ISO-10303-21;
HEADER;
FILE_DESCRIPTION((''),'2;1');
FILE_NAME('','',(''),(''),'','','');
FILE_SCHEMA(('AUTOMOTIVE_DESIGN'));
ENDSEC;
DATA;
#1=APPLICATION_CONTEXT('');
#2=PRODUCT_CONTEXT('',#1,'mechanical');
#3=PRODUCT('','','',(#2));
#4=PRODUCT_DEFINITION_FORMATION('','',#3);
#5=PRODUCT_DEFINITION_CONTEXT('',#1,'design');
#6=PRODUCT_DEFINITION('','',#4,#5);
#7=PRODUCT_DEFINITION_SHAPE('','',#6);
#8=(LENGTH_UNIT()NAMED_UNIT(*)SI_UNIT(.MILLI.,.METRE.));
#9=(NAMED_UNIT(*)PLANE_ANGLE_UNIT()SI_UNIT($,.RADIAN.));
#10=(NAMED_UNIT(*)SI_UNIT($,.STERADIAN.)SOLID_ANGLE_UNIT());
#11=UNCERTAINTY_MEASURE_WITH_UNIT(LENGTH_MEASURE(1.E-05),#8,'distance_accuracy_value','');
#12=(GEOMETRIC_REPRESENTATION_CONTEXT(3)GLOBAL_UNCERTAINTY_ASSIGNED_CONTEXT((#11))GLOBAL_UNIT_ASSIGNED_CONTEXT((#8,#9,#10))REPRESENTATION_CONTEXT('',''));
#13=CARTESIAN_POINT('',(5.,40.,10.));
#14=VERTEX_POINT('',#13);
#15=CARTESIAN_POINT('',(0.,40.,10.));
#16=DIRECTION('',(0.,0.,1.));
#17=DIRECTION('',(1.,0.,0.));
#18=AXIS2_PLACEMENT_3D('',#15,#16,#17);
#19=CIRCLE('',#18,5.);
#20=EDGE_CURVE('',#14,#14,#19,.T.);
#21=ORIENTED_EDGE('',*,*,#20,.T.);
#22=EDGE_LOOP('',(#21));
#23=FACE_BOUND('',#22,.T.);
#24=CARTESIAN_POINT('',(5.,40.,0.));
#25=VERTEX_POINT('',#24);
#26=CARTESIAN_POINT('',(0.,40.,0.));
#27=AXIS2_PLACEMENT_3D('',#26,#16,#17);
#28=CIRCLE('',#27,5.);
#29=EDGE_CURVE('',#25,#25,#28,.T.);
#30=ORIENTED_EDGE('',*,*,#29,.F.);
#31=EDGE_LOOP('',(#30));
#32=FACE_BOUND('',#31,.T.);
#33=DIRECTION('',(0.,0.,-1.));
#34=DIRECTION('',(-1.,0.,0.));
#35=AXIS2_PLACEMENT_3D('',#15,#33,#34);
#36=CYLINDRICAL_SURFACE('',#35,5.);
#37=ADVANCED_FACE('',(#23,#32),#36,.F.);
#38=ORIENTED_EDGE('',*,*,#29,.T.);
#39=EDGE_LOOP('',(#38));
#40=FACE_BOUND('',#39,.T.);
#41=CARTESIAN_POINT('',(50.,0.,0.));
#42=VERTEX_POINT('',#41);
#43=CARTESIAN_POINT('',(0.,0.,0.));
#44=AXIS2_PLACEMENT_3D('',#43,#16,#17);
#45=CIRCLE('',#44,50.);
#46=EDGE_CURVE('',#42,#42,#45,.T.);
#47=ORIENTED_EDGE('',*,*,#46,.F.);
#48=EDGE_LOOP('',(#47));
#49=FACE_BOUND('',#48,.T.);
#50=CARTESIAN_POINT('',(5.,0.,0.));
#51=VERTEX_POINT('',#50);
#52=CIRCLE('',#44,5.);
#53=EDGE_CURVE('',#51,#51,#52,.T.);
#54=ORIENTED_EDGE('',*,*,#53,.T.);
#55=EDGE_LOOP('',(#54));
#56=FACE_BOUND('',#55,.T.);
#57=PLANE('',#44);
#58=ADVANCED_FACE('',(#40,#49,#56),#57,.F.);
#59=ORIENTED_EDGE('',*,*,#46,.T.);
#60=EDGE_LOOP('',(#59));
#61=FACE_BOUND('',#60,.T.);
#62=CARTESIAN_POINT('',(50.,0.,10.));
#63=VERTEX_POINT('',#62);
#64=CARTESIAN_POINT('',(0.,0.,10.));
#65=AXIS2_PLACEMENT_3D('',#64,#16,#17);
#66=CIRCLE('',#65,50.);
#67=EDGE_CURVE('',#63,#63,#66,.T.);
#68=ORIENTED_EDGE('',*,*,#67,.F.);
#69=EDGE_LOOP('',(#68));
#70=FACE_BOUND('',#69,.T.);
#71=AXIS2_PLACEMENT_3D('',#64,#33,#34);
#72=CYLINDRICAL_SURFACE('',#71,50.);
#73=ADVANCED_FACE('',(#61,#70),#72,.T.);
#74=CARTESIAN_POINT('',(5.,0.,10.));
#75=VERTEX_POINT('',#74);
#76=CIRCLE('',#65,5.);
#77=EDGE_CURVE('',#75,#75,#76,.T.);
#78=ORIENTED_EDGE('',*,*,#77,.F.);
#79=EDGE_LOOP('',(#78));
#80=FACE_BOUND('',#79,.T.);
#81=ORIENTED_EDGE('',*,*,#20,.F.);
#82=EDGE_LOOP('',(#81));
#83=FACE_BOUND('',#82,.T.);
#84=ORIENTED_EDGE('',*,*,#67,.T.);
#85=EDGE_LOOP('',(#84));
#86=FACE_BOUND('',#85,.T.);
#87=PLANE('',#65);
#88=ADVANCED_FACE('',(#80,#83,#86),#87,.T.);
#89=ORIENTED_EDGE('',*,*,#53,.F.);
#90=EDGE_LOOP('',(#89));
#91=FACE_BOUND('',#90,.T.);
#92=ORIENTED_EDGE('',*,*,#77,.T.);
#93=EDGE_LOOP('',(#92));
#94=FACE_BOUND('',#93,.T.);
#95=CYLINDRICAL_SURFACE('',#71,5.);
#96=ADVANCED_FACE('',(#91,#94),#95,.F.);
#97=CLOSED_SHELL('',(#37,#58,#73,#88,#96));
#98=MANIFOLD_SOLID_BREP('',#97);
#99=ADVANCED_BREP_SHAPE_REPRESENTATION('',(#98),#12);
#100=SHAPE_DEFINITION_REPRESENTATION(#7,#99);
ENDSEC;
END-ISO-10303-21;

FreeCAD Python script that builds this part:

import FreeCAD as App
import Part
import Sketcher

doc = App.newDocument("Part")
params = doc.addObject("Spreadsheet::Sheet", "Params")
for row, (alias, value) in enumerate([
    ("sketch1_diameter", "100 mm"),
    ("sketch1_diameter2", "10 mm"),
    ("pad1_length", "10 mm"),
], start=1):
    params.set(f"A{row}", alias)
    params.set(f"B{row}", "=" + value)
    params.setAlias(f"B{row}", alias)

body = doc.addObject("PartDesign::Body", "Body")

# Sketch on XY plane
sketch1 = body.newObject("Sketcher::SketchObject", "Sketch")
sketch1.AttachmentSupport = (doc.getObject("XY_Plane"), [""])
sketch1.MapMode = "FlatFace"
sketch1.addGeometry([
    Part.Circle(App.Vector(0, 0, 0), App.Vector(0, 0, 1), 50),
    Part.Circle(App.Vector(0, 0, 0), App.Vector(0, 0, 1), 5),
    Part.Circle(App.Vector(0, 40, 0), App.Vector(0, 0, 1), 5),
], False)
sketch1.addConstraint([
    Sketcher.Constraint("Coincident", 0, 3, -1, 1),
    Sketcher.Constraint("Coincident", 1, 3, -1, 1),
    Sketcher.Constraint("Equal", 1, 2),
    Sketcher.Constraint("PointOnObject", 2, 3, -2),
    Sketcher.Constraint("Diameter", 0, 100.0),
    Sketcher.Constraint("Diameter", 1, 10.0),
    Sketcher.Constraint("DistanceY", -1, 1, 2, 3, 40.0),
])
sketch1.setExpression("Constraints[4]", "Params.sketch1_diameter")
sketch1.setExpression("Constraints[5]", "Params.sketch1_diameter2")
pad1 = body.newObject("PartDesign::Pad", "Pad")
pad1.Profile = sketch1
pad1.setExpression("Length", "Params.pad1_length")

doc.recompute()
